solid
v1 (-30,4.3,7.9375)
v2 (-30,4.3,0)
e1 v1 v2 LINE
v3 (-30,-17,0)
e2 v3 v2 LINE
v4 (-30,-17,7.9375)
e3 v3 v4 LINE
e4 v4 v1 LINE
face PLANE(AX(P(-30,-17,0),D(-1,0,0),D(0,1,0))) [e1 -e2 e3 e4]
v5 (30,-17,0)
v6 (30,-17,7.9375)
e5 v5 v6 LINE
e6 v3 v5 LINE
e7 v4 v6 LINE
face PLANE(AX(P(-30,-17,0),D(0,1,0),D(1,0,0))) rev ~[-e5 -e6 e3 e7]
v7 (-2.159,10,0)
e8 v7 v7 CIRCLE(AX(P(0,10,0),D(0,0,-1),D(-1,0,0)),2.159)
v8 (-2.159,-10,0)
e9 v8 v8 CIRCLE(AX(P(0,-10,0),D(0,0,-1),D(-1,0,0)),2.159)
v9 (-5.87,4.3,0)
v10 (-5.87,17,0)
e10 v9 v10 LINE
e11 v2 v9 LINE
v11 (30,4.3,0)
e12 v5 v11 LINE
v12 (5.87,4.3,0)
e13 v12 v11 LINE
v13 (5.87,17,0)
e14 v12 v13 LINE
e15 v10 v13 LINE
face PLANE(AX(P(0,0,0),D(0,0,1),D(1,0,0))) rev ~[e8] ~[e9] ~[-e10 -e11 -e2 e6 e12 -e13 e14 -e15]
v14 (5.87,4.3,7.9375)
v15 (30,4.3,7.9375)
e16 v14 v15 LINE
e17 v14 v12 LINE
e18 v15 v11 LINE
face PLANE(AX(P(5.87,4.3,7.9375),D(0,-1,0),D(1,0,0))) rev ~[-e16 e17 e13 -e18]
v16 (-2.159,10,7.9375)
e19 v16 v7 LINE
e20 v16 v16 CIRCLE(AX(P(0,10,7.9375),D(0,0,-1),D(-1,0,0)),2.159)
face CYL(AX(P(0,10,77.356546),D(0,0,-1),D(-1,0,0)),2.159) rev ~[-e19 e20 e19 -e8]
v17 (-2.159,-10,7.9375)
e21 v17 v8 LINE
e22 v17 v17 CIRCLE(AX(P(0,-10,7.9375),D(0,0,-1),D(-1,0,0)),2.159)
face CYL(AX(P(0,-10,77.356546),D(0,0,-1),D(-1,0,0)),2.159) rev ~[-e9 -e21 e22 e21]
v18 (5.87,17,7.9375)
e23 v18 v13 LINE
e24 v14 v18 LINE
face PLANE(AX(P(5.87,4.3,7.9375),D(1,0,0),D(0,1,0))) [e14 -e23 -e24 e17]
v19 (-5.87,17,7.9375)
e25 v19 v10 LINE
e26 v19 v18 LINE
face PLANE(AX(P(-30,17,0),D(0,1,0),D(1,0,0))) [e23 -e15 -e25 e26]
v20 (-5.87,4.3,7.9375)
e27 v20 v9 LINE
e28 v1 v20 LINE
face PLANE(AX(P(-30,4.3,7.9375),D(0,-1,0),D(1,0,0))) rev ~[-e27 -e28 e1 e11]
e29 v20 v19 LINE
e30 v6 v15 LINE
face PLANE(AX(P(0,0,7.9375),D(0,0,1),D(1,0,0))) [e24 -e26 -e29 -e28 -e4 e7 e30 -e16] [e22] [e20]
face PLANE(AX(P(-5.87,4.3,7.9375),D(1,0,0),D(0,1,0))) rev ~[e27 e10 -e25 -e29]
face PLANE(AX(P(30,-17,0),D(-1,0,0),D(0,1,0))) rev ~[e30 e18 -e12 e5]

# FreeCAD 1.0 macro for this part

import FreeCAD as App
import Part
import Sketcher
Q = App.Units.Quantity

doc = App.newDocument("Part")
body = doc.addObject("PartDesign::Body", "Body")

# Sketch on XY plane
sketch1 = body.newObject("Sketcher::SketchObject", "Sketch")
sketch1.AttachmentSupport = (doc.getObject("XY_Plane"), [""])
sketch1.MapMode = "FlatFace"
sketch1.addGeometry([
    Part.LineSegment(App.Vector(-30, 17, 0), App.Vector(-30, -17, 0)),
    Part.LineSegment(App.Vector(-30, -17, 0), App.Vector(30, -17, 0)),
    Part.LineSegment(App.Vector(30, -17, 0), App.Vector(30, 17, 0)),
    Part.LineSegment(App.Vector(30, 17, 0), App.Vector(-30, 17, 0)),
], False)
sketch1.addConstraint([
    Sketcher.Constraint("Coincident", 0, 2, 1, 1),
    Sketcher.Constraint("Coincident", 1, 2, 2, 1),
    Sketcher.Constraint("Coincident", 2, 2, 3, 1),
    Sketcher.Constraint("Coincident", 3, 2, 0, 1),
    Sketcher.Constraint("Vertical", 0),
    Sketcher.Constraint("Horizontal", 1),
    Sketcher.Constraint("Vertical", 2),
    Sketcher.Constraint("Horizontal", 3),
    Sketcher.Constraint("Symmetric", 0, 2, 2, 2, -1, 1),
    Sketcher.Constraint("DistanceX", 1, 1, 1, 2, 60.0),
    Sketcher.Constraint("DistanceY", 0, 2, 0, 1, 34.0),
])
pad1 = body.newObject("PartDesign::Pad", "Pad")
pad1.Profile = sketch1
pad1.Length = Q("0.3125 in")

# Sketch on XY plane
sketch2 = body.newObject("Sketcher::SketchObject", "Sketch001")
sketch2.AttachmentSupport = (doc.getObject("XY_Plane"), [""])
sketch2.MapMode = "FlatFace"
sketch2.AttachmentOffset = App.Placement(App.Vector(0, 0, 0.3125 * 25.4), App.Rotation())
sketch2.addGeometry([
    Part.Circle(App.Vector(0, 10, 0), App.Vector(0, 0, 1), 2.2),
    Part.Circle(App.Vector(0, -10, 0), App.Vector(0, 0, 1), 2.2),
], False)
sketch2.addConstraint([
    Sketcher.Constraint("Equal", 0, 1),
    Sketcher.Constraint("Symmetric", 0, 3, 1, 3, -1, 1),
    Sketcher.Constraint("PointOnObject", 0, 3, -2),
    Sketcher.Constraint("Diameter", 0, Q("0.17 in")),
    Sketcher.Constraint("DistanceY", -1, 1, 0, 3, 10.0),
])
doc.recompute()
hole = body.newObject("PartDesign::Hole", "Hole")
hole.Profile = sketch2
hole.ThreadType = "None"
hole.Diameter = Q("0.17 in")
hole.DepthType = "ThroughAll"

# Sketch on XY plane
sketch3 = body.newObject("Sketcher::SketchObject", "Sketch002")
sketch3.AttachmentSupport = (doc.getObject("XY_Plane"), [""])
sketch3.MapMode = "FlatFace"
sketch3.AttachmentOffset = App.Placement(App.Vector(0, 0, 0.3125 * 25.4), App.Rotation())
sketch3.addGeometry([
    Part.LineSegment(App.Vector(-30, 17, 0), App.Vector(-30, 4, 0)),  # 0
    Part.LineSegment(App.Vector(-30, 4, 0), App.Vector(-6, 4, 0)),  # 1
    Part.LineSegment(App.Vector(-6, 4, 0), App.Vector(-6, 17, 0)),  # 2
    Part.LineSegment(App.Vector(-6, 17, 0), App.Vector(-30, 17, 0)),  # 3
    Part.LineSegment(App.Vector(6, 17, 0), App.Vector(6, 4, 0)),  # 4
    Part.LineSegment(App.Vector(6, 4, 0), App.Vector(30, 4, 0)),  # 5
    Part.LineSegment(App.Vector(30, 4, 0), App.Vector(30, 17, 0)),  # 6
    Part.LineSegment(App.Vector(30, 17, 0), App.Vector(6, 17, 0)),  # 7
], False)
sketch3.addConstraint([
    Sketcher.Constraint("Coincident", 0, 2, 1, 1),
    Sketcher.Constraint("Coincident", 1, 2, 2, 1),
    Sketcher.Constraint("Coincident", 2, 2, 3, 1),
    Sketcher.Constraint("Coincident", 3, 2, 0, 1),
    Sketcher.Constraint("Coincident", 4, 2, 5, 1),
    Sketcher.Constraint("Coincident", 5, 2, 6, 1),
    Sketcher.Constraint("Coincident", 6, 2, 7, 1),
    Sketcher.Constraint("Coincident", 7, 2, 4, 1),
    Sketcher.Constraint("Vertical", 0),
    Sketcher.Constraint("Horizontal", 1),
    Sketcher.Constraint("Vertical", 2),
    Sketcher.Constraint("Horizontal", 3),
    Sketcher.Constraint("Vertical", 4),
    Sketcher.Constraint("Horizontal", 5),
    Sketcher.Constraint("Vertical", 6),
    Sketcher.Constraint("Horizontal", 7),
    Sketcher.Constraint("Symmetric", 1, 2, 4, 2, -2),
    Sketcher.Constraint("Symmetric", 3, 2, 6, 2, -2),
    Sketcher.Constraint("DistanceY", 0, 2, 0, 1, Q("0.5 in")),
    Sketcher.Constraint("DistanceX", 1, 1, 1, 2, Q("0.95 in")),
    Sketcher.Constraint("DistanceX", 0, 2, -1, 1, 30.0),
    Sketcher.Constraint("DistanceY", -1, 1, 0, 2, 4.3),
])
pocket1 = body.newObject("PartDesign::Pocket", "Pocket")
pocket1.Profile = sketch3
pocket1.Type = "ThroughAll"

doc.recompute()
